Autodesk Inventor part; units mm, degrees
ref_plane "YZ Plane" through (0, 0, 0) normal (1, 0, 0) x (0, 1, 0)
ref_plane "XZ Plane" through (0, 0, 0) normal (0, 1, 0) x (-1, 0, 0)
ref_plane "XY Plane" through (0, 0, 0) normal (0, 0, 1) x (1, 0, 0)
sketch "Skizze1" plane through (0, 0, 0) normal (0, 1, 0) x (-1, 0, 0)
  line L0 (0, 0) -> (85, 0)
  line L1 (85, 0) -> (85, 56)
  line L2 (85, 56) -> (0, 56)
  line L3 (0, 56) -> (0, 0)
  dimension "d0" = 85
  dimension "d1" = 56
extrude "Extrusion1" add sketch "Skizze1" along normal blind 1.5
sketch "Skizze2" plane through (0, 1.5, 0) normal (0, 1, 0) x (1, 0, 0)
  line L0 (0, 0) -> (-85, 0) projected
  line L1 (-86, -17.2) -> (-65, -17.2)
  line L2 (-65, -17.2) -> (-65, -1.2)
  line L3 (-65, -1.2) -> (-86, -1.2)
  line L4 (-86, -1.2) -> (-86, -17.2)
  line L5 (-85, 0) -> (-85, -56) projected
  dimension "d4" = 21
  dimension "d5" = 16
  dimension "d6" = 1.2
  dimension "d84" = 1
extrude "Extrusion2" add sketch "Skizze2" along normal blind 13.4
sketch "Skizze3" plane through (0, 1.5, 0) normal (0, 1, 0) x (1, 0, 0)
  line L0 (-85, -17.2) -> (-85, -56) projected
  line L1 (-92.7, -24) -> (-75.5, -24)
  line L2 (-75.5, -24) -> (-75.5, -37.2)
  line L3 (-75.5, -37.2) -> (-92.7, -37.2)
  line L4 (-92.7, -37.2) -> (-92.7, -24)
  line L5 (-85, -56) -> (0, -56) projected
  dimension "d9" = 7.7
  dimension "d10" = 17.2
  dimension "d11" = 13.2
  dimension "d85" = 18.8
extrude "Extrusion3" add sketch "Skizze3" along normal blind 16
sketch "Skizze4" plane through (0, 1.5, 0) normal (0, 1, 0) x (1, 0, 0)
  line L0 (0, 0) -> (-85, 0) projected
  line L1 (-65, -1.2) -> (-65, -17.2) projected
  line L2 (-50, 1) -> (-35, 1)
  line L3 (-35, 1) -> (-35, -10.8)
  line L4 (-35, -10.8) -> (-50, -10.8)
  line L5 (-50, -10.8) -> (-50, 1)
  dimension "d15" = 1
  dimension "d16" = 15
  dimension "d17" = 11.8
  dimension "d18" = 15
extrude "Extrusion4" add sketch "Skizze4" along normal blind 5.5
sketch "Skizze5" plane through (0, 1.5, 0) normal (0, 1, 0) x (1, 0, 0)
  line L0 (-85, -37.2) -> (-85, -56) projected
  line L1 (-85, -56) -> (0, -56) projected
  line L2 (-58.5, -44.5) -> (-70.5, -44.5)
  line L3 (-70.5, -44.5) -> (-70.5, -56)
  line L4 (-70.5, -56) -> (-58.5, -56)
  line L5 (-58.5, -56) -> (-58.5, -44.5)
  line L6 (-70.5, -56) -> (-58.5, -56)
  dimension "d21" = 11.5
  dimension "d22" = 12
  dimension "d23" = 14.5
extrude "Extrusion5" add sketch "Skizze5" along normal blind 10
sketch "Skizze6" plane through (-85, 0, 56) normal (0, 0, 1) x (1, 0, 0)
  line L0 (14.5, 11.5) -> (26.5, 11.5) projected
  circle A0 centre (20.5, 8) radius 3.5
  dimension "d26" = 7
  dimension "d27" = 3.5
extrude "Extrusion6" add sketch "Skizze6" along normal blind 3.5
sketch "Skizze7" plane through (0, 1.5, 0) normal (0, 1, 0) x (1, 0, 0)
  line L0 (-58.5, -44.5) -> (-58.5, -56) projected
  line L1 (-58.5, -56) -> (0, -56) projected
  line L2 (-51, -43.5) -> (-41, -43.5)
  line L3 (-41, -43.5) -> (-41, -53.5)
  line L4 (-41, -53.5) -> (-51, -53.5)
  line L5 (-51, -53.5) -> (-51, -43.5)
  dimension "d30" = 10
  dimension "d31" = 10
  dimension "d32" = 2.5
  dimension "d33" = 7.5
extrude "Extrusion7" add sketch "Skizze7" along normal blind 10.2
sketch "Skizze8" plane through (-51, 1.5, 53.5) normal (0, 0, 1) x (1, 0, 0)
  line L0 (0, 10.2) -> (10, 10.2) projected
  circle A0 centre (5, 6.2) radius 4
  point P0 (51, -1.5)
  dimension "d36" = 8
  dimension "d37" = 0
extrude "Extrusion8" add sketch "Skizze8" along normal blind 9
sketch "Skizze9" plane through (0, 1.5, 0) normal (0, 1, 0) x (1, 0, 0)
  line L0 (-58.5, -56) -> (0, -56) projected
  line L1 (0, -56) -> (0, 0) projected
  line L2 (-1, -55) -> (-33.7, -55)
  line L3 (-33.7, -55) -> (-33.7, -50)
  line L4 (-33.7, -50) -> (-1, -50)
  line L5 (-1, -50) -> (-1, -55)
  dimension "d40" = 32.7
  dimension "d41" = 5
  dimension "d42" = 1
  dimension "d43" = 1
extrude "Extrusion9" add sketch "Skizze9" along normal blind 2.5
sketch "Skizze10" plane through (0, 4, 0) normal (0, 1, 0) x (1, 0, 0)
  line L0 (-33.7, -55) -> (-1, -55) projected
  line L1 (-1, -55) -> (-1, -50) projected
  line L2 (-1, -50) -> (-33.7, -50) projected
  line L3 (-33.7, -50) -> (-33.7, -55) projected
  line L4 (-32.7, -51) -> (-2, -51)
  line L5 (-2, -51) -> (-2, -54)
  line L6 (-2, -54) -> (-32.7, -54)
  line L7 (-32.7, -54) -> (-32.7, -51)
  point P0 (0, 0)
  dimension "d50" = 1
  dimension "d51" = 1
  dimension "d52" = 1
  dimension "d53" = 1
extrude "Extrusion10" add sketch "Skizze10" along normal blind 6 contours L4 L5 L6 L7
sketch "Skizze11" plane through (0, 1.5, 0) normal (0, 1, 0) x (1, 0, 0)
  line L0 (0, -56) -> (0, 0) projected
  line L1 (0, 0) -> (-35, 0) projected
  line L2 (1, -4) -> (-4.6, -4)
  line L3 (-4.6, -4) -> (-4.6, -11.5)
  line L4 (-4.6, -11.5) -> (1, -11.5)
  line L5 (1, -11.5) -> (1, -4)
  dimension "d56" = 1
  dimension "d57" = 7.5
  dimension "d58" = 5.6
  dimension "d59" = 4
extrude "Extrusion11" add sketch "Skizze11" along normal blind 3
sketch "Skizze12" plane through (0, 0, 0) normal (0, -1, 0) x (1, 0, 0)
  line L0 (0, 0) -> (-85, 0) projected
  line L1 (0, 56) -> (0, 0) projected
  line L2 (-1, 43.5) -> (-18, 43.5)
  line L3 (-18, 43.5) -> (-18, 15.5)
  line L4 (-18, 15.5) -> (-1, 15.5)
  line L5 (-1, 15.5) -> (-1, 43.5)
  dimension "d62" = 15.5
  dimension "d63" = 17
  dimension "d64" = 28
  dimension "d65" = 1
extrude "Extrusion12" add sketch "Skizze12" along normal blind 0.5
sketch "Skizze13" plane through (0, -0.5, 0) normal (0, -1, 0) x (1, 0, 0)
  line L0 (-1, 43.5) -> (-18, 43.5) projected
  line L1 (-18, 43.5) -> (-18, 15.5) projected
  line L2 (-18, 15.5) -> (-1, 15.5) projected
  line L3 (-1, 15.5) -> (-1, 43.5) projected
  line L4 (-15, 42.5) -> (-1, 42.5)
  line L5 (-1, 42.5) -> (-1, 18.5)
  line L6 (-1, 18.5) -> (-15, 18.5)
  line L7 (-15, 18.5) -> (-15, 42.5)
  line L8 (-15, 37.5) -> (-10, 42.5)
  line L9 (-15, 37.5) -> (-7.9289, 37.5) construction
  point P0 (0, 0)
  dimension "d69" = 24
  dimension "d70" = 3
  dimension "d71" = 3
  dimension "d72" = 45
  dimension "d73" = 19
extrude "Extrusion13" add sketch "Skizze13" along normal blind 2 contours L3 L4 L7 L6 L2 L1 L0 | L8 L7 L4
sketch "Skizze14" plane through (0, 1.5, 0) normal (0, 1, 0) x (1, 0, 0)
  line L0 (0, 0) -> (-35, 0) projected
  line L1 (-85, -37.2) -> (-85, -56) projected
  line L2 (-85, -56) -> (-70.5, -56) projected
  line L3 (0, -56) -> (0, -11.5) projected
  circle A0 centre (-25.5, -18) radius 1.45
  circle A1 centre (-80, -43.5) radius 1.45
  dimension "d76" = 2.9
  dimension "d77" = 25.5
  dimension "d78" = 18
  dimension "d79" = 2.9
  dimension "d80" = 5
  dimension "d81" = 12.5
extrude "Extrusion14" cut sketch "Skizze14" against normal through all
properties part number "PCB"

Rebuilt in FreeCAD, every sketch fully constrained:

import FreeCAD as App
import Part
import Sketcher

V = App.Vector
Q = App.Units.Quantity

doc = App.newDocument("Part")
body = doc.addObject("PartDesign::Body", "Body")

# Sketch on XZ plane
sketch1 = body.newObject("Sketcher::SketchObject", "Sketch")
sketch1.AttachmentSupport = (doc.getObject("XZ_Plane"), [""])
sketch1.MapMode = "FlatFace"
sketch1.addGeometry([
    Part.LineSegment(V(0, 56, 0), V(0, 0, 0)),
    Part.LineSegment(V(0, 0, 0), V(-85, 0, 0)),
    Part.LineSegment(V(-85, 0, 0), V(-85, 56, 0)),
    Part.LineSegment(V(-85, 56, 0), V(0, 56, 0)),
], False)
sketch1.addConstraint([
    Sketcher.Constraint("Coincident", 0, 2, 1, 1),
    Sketcher.Constraint("Coincident", 1, 2, 2, 1),
    Sketcher.Constraint("Coincident", 2, 2, 3, 1),
    Sketcher.Constraint("Coincident", 3, 2, 0, 1),
    Sketcher.Constraint("Vertical", 0),
    Sketcher.Constraint("Horizontal", 1),
    Sketcher.Constraint("Vertical", 2),
    Sketcher.Constraint("Horizontal", 3),
    Sketcher.Constraint("Coincident", 0, 2, -1, 1),
    Sketcher.Constraint("DistanceX", 1, 2, 1, 1, 85.0),
    Sketcher.Constraint("DistanceY", 0, 2, 0, 1, 56.0),
])
pad1 = body.newObject("PartDesign::Pad", "Pad")
pad1.Profile = sketch1
pad1.Length = 1.5
pad1.Reversed = True

# Sketch on XZ plane
sketch2 = body.newObject("Sketcher::SketchObject", "Sketch001")
sketch2.AttachmentSupport = (doc.getObject("XZ_Plane"), [""])
sketch2.MapMode = "FlatFace"
sketch2.AttachmentOffset = App.Placement(V(0, 0, -1.5), App.Rotation())
sketch2.addGeometry([
    Part.LineSegment(V(-86, 1.2, 0), V(-86, 17.2, 0)),
    Part.LineSegment(V(-86, 17.2, 0), V(-65, 17.2, 0)),
    Part.LineSegment(V(-65, 17.2, 0), V(-65, 1.2, 0)),
    Part.LineSegment(V(-65, 1.2, 0), V(-86, 1.2, 0)),
], False)
sketch2.addConstraint([
    Sketcher.Constraint("Coincident", 0, 2, 1, 1),
    Sketcher.Constraint("Coincident", 1, 2, 2, 1),
    Sketcher.Constraint("Coincident", 2, 2, 3, 1),
    Sketcher.Constraint("Coincident", 3, 2, 0, 1),
    Sketcher.Constraint("Vertical", 0),
    Sketcher.Constraint("Horizontal", 1),
    Sketcher.Constraint("Vertical", 2),
    Sketcher.Constraint("Horizontal", 3),
    Sketcher.Constraint("DistanceX", 1, 1, 1, 2, 21.0),
    Sketcher.Constraint("DistanceY", 0, 1, 0, 2, 16.0),
    Sketcher.Constraint("DistanceY", -1, 1, 2, 2, 1.2),
    Sketcher.Constraint("DistanceX", 0, 2, -1, 1, 86.0),
])
pad2 = body.newObject("PartDesign::Pad", "Pad001")
pad2.Profile = sketch2
pad2.Length = 13.4
pad2.Reversed = True

# Sketch on XZ plane
sketch3 = body.newObject("Sketcher::SketchObject", "Sketch002")
sketch3.AttachmentSupport = (doc.getObject("XZ_Plane"), [""])
sketch3.MapMode = "FlatFace"
sketch3.AttachmentOffset = App.Placement(V(0, 0, -1.5), App.Rotation())
sketch3.addGeometry([
    Part.LineSegment(V(-75.5, 24, 0), V(-92.7, 24, 0)),
    Part.LineSegment(V(-92.7, 24, 0), V(-92.7, 37.2, 0)),
    Part.LineSegment(V(-92.7, 37.2, 0), V(-75.5, 37.2, 0)),
    Part.LineSegment(V(-75.5, 37.2, 0), V(-75.5, 24, 0)),
], False)
sketch3.addConstraint([
    Sketcher.Constraint("Coincident", 0, 2, 1, 1),
    Sketcher.Constraint("Coincident", 1, 2, 2, 1),
    Sketcher.Constraint("Coincident", 2, 2, 3, 1),
    Sketcher.Constraint("Coincident", 3, 2, 0, 1),
    Sketcher.Constraint("Horizontal", 0),
    Sketcher.Constraint("Vertical", 1),
    Sketcher.Constraint("Horizontal", 2),
    Sketcher.Constraint("Vertical", 3),
    Sketcher.Constraint("DistanceX", 0, 2, 0, 1, 17.2),
    Sketcher.Constraint("DistanceY", 1, 1, 1, 2, 13.2),
    Sketcher.Constraint("DistanceY", -1, 1, 0, 2, 24.0),
    Sketcher.Constraint("DistanceX", 0, 2, -1, 1, 92.7),
])
pad3 = body.newObject("PartDesign::Pad", "Pad002")
pad3.Profile = sketch3
pad3.Length = 16
pad3.Reversed = True

# Sketch on XZ plane
sketch4 = body.newObject("Sketcher::SketchObject", "Sketch003")
sketch4.AttachmentSupport = (doc.getObject("XZ_Plane"), [""])
sketch4.MapMode = "FlatFace"
sketch4.AttachmentOffset = App.Placement(V(0, 0, -1.5), App.Rotation())
sketch4.addGeometry([
    Part.LineSegment(V(-35, 10.8, 0), V(-35, -1, 0)),
    Part.LineSegment(V(-35, -1, 0), V(-50, -1, 0)),
    Part.LineSegment(V(-50, -1, 0), V(-50, 10.8, 0)),
    Part.LineSegment(V(-50, 10.8, 0), V(-35, 10.8, 0)),
], False)
sketch4.addConstraint([
    Sketcher.Constraint("Coincident", 0, 2, 1, 1),
    Sketcher.Constraint("Coincident", 1, 2, 2, 1),
    Sketcher.Constraint("Coincident", 2, 2, 3, 1),
    Sketcher.Constraint("Coincident", 3, 2, 0, 1),
    Sketcher.Constraint("Vertical", 0),
    Sketcher.Constraint("Horizontal", 1),
    Sketcher.Constraint("Vertical", 2),
    Sketcher.Constraint("Horizontal", 3),
    Sketcher.Constraint("DistanceX", 1, 2, 1, 1, 15.0),
    Sketcher.Constraint("DistanceY", 0, 2, 0, 1, 11.8),
    Sketcher.Constraint("DistanceY", 0, 2, -1, 1, 1.0),
    Sketcher.Constraint("DistanceX", 0, 2, -1, 1, 35.0),
])
pad4 = body.newObject("PartDesign::Pad", "Pad003")
pad4.Profile = sketch4
pad4.Length = 5.5
pad4.Reversed = True

# Sketch on XZ plane
sketch5 = body.newObject("Sketcher::SketchObject", "Sketch004")
sketch5.AttachmentSupport = (doc.getObject("XZ_Plane"), [""])
sketch5.MapMode = "FlatFace"
sketch5.AttachmentOffset = App.Placement(V(0, 0, -1.5), App.Rotation())
sketch5.addGeometry([
    Part.LineSegment(V(-70.5, 44.5, 0), V(-70.5, 56, 0)),
    Part.LineSegment(V(-70.5, 56, 0), V(-58.5, 56, 0)),
    Part.LineSegment(V(-58.5, 56, 0), V(-58.5, 44.5, 0)),
    Part.LineSegment(V(-58.5, 44.5, 0), V(-70.5, 44.5, 0)),
], False)
sketch5.addConstraint([
    Sketcher.Constraint("Coincident", 0, 2, 1, 1),
    Sketcher.Constraint("Coincident", 1, 2, 2, 1),
    Sketcher.Constraint("Coincident", 2, 2, 3, 1),
    Sketcher.Constraint("Coincident", 3, 2, 0, 1),
    Sketcher.Constraint("Vertical", 0),
    Sketcher.Constraint("Horizontal", 1),
    Sketcher.Constraint("Vertical", 2),
    Sketcher.Constraint("Horizontal", 3),
    Sketcher.Constraint("DistanceX", 1, 1, 1, 2, 12.0),
    Sketcher.Constraint("DistanceY", 0, 1, 0, 2, 11.5),
    Sketcher.Constraint("DistanceY", -1, 1, 0, 2, 56.0),
    Sketcher.Constraint("DistanceX", 0, 2, -1, 1, 70.5),
])
pad5 = body.newObject("PartDesign::Pad", "Pad004")
pad5.Profile = sketch5
pad5.Length = 10
pad5.Reversed = True

# Sketch on XY plane
sketch6 = body.newObject("Sketcher::SketchObject", "Sketch005")
sketch6.AttachmentSupport = (doc.getObject("XY_Plane"), [""])
sketch6.MapMode = "FlatFace"
sketch6.AttachmentOffset = App.Placement(V(0, 0, 56), App.Rotation())
sketch6.addGeometry(Part.Circle(V(-64.5, 8, 0), V(0, 0, 1), 3.5), False)
sketch6.addConstraint([
    Sketcher.Constraint("Diameter", 0, 7.0),
    Sketcher.Constraint("DistanceY", -1, 1, 0, 3, 8.0),
    Sketcher.Constraint("DistanceX", 0, 3, -1, 1, 64.5),
])
pad6 = body.newObject("PartDesign::Pad", "Pad005")
pad6.Profile = sketch6
pad6.Length = 3.5

# Sketch on XZ plane
sketch7 = body.newObject("Sketcher::SketchObject", "Sketch006")
sketch7.AttachmentSupport = (doc.getObject("XZ_Plane"), [""])
sketch7.MapMode = "FlatFace"
sketch7.AttachmentOffset = App.Placement(V(0, 0, -1.5), App.Rotation())
sketch7.addGeometry([
    Part.LineSegment(V(-41, 43.5, 0), V(-51, 43.5, 0)),
    Part.LineSegment(V(-51, 43.5, 0), V(-51, 53.5, 0)),
    Part.LineSegment(V(-51, 53.5, 0), V(-41, 53.5, 0)),
    Part.LineSegment(V(-41, 53.5, 0), V(-41, 43.5, 0)),
], False)
sketch7.addConstraint([
    Sketcher.Constraint("Coincident", 0, 2, 1, 1),
    Sketcher.Constraint("Coincident", 1, 2, 2, 1),
    Sketcher.Constraint("Coincident", 2, 2, 3, 1),
    Sketcher.Constraint("Coincident", 3, 2, 0, 1),
    Sketcher.Constraint("Horizontal", 0),
    Sketcher.Constraint("Vertical", 1),
    Sketcher.Constraint("Horizontal", 2),
    Sketcher.Constraint("Vertical", 3),
    Sketcher.Constraint("Equal", 2, 1),
    Sketcher.Constraint("DistanceX", 0, 2, 0, 1, 10.0),
    Sketcher.Constraint("DistanceX", 0, 2, -1, 1, 51.0),
    Sketcher.Constraint("DistanceY", -1, 1, 0, 2, 43.5),
])
pad7 = body.newObject("PartDesign::Pad", "Pad006")
pad7.Profile = sketch7
pad7.Length = 10.2
pad7.Reversed = True

# Sketch on XY plane
sketch8 = body.newObject("Sketcher::SketchObject", "Sketch007")
sketch8.AttachmentSupport = (doc.getObject("XY_Plane"), [""])
sketch8.MapMode = "FlatFace"
sketch8.AttachmentOffset = App.Placement(V(0, 0, 53.5), App.Rotation())
sketch8.addGeometry(Part.Circle(V(-46, 7.7, 0), V(0, 0, 1), 4), False)
sketch8.addConstraint([
    Sketcher.Constraint("Diameter", 0, 8.0),
    Sketcher.Constraint("DistanceX", 0, 3, -1, 1, 46.0),
    Sketcher.Constraint("DistanceY", -1, 1, 0, 3, 7.7),
])
pad8 = body.newObject("PartDesign::Pad", "Pad007")
pad8.Profile = sketch8
pad8.Length = 9

# Sketch on XZ plane
sketch9 = body.newObject("Sketcher::SketchObject", "Sketch008")
sketch9.AttachmentSupport = (doc.getObject("XZ_Plane"), [""])
sketch9.MapMode = "FlatFace"
sketch9.AttachmentOffset = App.Placement(V(0, 0, -1.5), App.Rotation())
sketch9.addGeometry([
    Part.LineSegment(V(-33.7, 55, 0), V(-1, 55, 0)),
    Part.LineSegment(V(-1, 55, 0), V(-1, 50, 0)),
    Part.LineSegment(V(-1, 50, 0), V(-33.7, 50, 0)),
    Part.LineSegment(V(-33.7, 50, 0), V(-33.7, 55, 0)),
], False)
sketch9.addConstraint([
    Sketcher.Constraint("Coincident", 0, 2, 1, 1),
    Sketcher.Constraint("Coincident", 1, 2, 2, 1),
    Sketcher.Constraint("Coincident", 2, 2, 3, 1),
    Sketcher.Constraint("Coincident", 3, 2, 0, 1),
    Sketcher.Constraint("Horizontal", 0),
    Sketcher.Constraint("Vertical", 1),
    Sketcher.Constraint("Horizontal", 2),
    Sketcher.Constraint("Vertical", 3),
    Sketcher.Constraint("DistanceY", 1, 2, 1, 1, 5.0),
    Sketcher.Constraint("DistanceX", 0, 1, 0, 2, 32.7),
    Sketcher.Constraint("DistanceX", 0, 2, -1, 1, 1.0),
    Sketcher.Constraint("DistanceY", -1, 1, 0, 2, 55.0),
])
pad9 = body.newObject("PartDesign::Pad", "Pad008")
pad9.Profile = sketch9
pad9.Length = 2.5
pad9.Reversed = True

# Sketch on XZ plane
sketch10 = body.newObject("Sketcher::SketchObject", "Sketch009")
sketch10.AttachmentSupport = (doc.getObject("XZ_Plane"), [""])
sketch10.MapMode = "FlatFace"
sketch10.AttachmentOffset = App.Placement(V(0, 0, -4), App.Rotation())
sketch10.addGeometry([
    Part.LineSegment(V(-2, 51, 0), V(-32.7, 51, 0)),
    Part.LineSegment(V(-32.7, 51, 0), V(-32.7, 54, 0)),
    Part.LineSegment(V(-32.7, 54, 0), V(-2, 54, 0)),
    Part.LineSegment(V(-2, 54, 0), V(-2, 51, 0)),
], False)
sketch10.addConstraint([
    Sketcher.Constraint("Coincident", 0, 2, 1, 1),
    Sketcher.Constraint("Coincident", 1, 2, 2, 1),
    Sketcher.Constraint("Coincident", 2, 2, 3, 1),
    Sketcher.Constraint("Coincident", 3, 2, 0, 1),
    Sketcher.Constraint("Horizontal", 0),
    Sketcher.Constraint("Vertical", 1),
    Sketcher.Constraint("Horizontal", 2),
    Sketcher.Constraint("Vertical", 3),
    Sketcher.Constraint("DistanceY", 1, 1, 1, 2, 3.0),
    Sketcher.Constraint("DistanceX", 0, 2, 0, 1, 30.7),
    Sketcher.Constraint("DistanceY", -1, 1, 0, 2, 51.0),
    Sketcher.Constraint("DistanceX", 2, 2, -1, 1, 2.0),
])
pad10 = body.newObject("PartDesign::Pad", "Pad009")
pad10.Profile = sketch10
pad10.Length = 6
pad10.Reversed = True

# Sketch on XZ plane
sketch11 = body.newObject("Sketcher::SketchObject", "Sketch010")
sketch11.AttachmentSupport = (doc.getObject("XZ_Plane"), [""])
sketch11.MapMode = "FlatFace"
sketch11.AttachmentOffset = App.Placement(V(0, 0, -1.5), App.Rotation())
sketch11.addGeometry([
    Part.LineSegment(V(-4.6, 11.5, 0), V(1, 11.5, 0)),
    Part.LineSegment(V(1, 11.5, 0), V(1, 4, 0)),
    Part.LineSegment(V(1, 4, 0), V(-4.6, 4, 0)),
    Part.LineSegment(V(-4.6, 4, 0), V(-4.6, 11.5, 0)),
], False)
sketch11.addConstraint([
    Sketcher.Constraint("Coincident", 0, 2, 1, 1),
    Sketcher.Constraint("Coincident", 1, 2, 2, 1),
    Sketcher.Constraint("Coincident", 2, 2, 3, 1),
    Sketcher.Constraint("Coincident", 3, 2, 0, 1),
    Sketcher.Constraint("Horizontal", 0),
    Sketcher.Constraint("Vertical", 1),
    Sketcher.Constraint("Horizontal", 2),
    Sketcher.Constraint("Vertical", 3),
    Sketcher.Constraint("DistanceX", 0, 1, 0, 2, 5.6),
    Sketcher.Constraint("DistanceY", 1, 2, 1, 1, 7.5),
    Sketcher.Constraint("DistanceX", -1, 1, 0, 2, 1.0),
    Sketcher.Constraint("DistanceY", -1, 1, 1, 2, 4.0),
])
pad11 = body.newObject("PartDesign::Pad", "Pad010")
pad11.Profile = sketch11
pad11.Length = 3
pad11.Reversed = True

# Sketch on XZ plane
sketch12 = body.newObject("Sketcher::SketchObject", "Sketch011")
sketch12.AttachmentSupport = (doc.getObject("XZ_Plane"), [""])
sketch12.MapMode = "FlatFace"
sketch12.addGeometry([
    Part.LineSegment(V(-1, 15.5, 0), V(-1, 43.5, 0)),
    Part.LineSegment(V(-1, 43.5, 0), V(-18, 43.5, 0)),
    Part.LineSegment(V(-18, 43.5, 0), V(-18, 15.5, 0)),
    Part.LineSegment(V(-18, 15.5, 0), V(-1, 15.5, 0)),
], False)
sketch12.addConstraint([
    Sketcher.Constraint("Coincident", 0, 2, 1, 1),
    Sketcher.Constraint("Coincident", 1, 2, 2, 1),
    Sketcher.Constraint("Coincident", 2, 2, 3, 1),
    Sketcher.Constraint("Coincident", 3, 2, 0, 1),
    Sketcher.Constraint("Vertical", 0),
    Sketcher.Constraint("Horizontal", 1),
    Sketcher.Constraint("Vertical", 2),
    Sketcher.Constraint("Horizontal", 3),
    Sketcher.Constraint("DistanceX", 1, 2, 1, 1, 17.0),
    Sketcher.Constraint("DistanceY", 0, 1, 0, 2, 28.0),
    Sketcher.Constraint("DistanceX", 0, 2, -1, 1, 1.0),
    Sketcher.Constraint("DistanceY", -1, 1, 2, 2, 15.5),
])
pad12 = body.newObject("PartDesign::Pad", "Pad011")
pad12.Profile = sketch12
pad12.Length = 0.5

# Sketch on XZ plane
sketch13 = body.newObject("Sketcher::SketchObject", "Sketch012")
sketch13.AttachmentSupport = (doc.getObject("XZ_Plane"), [""])
sketch13.MapMode = "FlatFace"
sketch13.AttachmentOffset = App.Placement(V(0, 0, 0.5), App.Rotation())
sketch13.addGeometry([
    Part.LineSegment(V(-1, 42.5, 0), V(-1, 43.5, 0)),  # 0
    Part.LineSegment(V(-1, 43.5, 0), V(-18, 43.5, 0)),  # 1
    Part.LineSegment(V(-18, 43.5, 0), V(-18, 15.5, 0)),  # 2
    Part.LineSegment(V(-18, 15.5, 0), V(-1, 15.5, 0)),  # 3
    Part.LineSegment(V(-1, 15.5, 0), V(-1, 18.5, 0)),  # 4
    Part.LineSegment(V(-1, 18.5, 0), V(-15, 18.5, 0)),  # 5
    Part.LineSegment(V(-15, 18.5, 0), V(-15, 37.5, 0)),  # 6
    Part.LineSegment(V(-15, 37.5, 0), V(-10, 42.5, 0)),  # 7
    Part.LineSegment(V(-10, 42.5, 0), V(-1, 42.5, 0)),  # 8
], False)
sketch13.addConstraint([
    Sketcher.Constraint("Coincident", 0, 2, 1, 1),
    Sketcher.Constraint("Coincident", 1, 2, 2, 1),
    Sketcher.Constraint("Coincident", 2, 2, 3, 1),
    Sketcher.Constraint("Coincident", 3, 2, 4, 1),
    Sketcher.Constraint("Coincident", 4, 2, 5, 1),
    Sketcher.Constraint("Coincident", 5, 2, 6, 1),
    Sketcher.Constraint("Coincident", 6, 2, 7, 1),
    Sketcher.Constraint("Coincident", 7, 2, 8, 1),
    Sketcher.Constraint("Coincident", 8, 2, 0, 1),
    Sketcher.Constraint("Vertical", 0),
    Sketcher.Constraint("Horizontal", 1),
    Sketcher.Constraint("Vertical", 2),
    Sketcher.Constraint("Horizontal", 3),
    Sketcher.Constraint("Vertical", 4),
    Sketcher.Constraint("Horizontal", 5),
    Sketcher.Constraint("Vertical", 6),
    Sketcher.Constraint("Horizontal", 8),
    Sketcher.Constraint("Vertical", 0, 2, 3, 2),
    Sketcher.Constraint("DistanceY", 4, 1, 4, 2, 3.0),
    Sketcher.Constraint("DistanceY", 6, 1, 6, 2, 19.0),
    Sketcher.Constraint("Angle", 7, Q("45 deg")),
    Sketcher.Constraint("DistanceX", 2, 2, 5, 2, 3.0),
    Sketcher.Constraint("DistanceY", 5, 2, 7, 2, 24.0),
    Sketcher.Constraint("DistanceX", 1, 2, 1, 1, 17.0),
    Sketcher.Constraint("DistanceY", 0, 1, 0, 2, 1.0),
    Sketcher.Constraint("DistanceX", 0, 2, -1, 1, 1.0),
    Sketcher.Constraint("DistanceY", -1, 1, 0, 2, 43.5),
])
pad13 = body.newObject("PartDesign::Pad", "Pad012")
pad13.Profile = sketch13
pad13.Length = 2

# Sketch on XZ plane
sketch14 = body.newObject("Sketcher::SketchObject", "Sketch013")
sketch14.AttachmentSupport = (doc.getObject("XZ_Plane"), [""])
sketch14.MapMode = "FlatFace"
sketch14.AttachmentOffset = App.Placement(V(0, 0, -1.5), App.Rotation())
sketch14.addGeometry([
    Part.Circle(V(-25.5, 18, 0), V(0, 0, 1), 1.45),
    Part.Circle(V(-80, 43.5, 0), V(0, 0, 1), 1.45),
], False)
sketch14.addConstraint([
    Sketcher.Constraint("Equal", 0, 1),
    Sketcher.Constraint("Diameter", 0, 2.9),
    Sketcher.Constraint("DistanceY", -1, 1, 0, 3, 18.0),
    Sketcher.Constraint("DistanceX", 0, 3, -1, 1, 25.5),
    Sketcher.Constraint("DistanceY", 0, 3, 1, 3, 25.5),
    Sketcher.Constraint("DistanceX", 1, 3, -1, 1, 80.0),
])
pocket1 = body.newObject("PartDesign::Pocket", "Pocket")
pocket1.Profile = sketch14
pocket1.Type = "ThroughAll"
pocket1.Reversed = True

doc.recompute()
